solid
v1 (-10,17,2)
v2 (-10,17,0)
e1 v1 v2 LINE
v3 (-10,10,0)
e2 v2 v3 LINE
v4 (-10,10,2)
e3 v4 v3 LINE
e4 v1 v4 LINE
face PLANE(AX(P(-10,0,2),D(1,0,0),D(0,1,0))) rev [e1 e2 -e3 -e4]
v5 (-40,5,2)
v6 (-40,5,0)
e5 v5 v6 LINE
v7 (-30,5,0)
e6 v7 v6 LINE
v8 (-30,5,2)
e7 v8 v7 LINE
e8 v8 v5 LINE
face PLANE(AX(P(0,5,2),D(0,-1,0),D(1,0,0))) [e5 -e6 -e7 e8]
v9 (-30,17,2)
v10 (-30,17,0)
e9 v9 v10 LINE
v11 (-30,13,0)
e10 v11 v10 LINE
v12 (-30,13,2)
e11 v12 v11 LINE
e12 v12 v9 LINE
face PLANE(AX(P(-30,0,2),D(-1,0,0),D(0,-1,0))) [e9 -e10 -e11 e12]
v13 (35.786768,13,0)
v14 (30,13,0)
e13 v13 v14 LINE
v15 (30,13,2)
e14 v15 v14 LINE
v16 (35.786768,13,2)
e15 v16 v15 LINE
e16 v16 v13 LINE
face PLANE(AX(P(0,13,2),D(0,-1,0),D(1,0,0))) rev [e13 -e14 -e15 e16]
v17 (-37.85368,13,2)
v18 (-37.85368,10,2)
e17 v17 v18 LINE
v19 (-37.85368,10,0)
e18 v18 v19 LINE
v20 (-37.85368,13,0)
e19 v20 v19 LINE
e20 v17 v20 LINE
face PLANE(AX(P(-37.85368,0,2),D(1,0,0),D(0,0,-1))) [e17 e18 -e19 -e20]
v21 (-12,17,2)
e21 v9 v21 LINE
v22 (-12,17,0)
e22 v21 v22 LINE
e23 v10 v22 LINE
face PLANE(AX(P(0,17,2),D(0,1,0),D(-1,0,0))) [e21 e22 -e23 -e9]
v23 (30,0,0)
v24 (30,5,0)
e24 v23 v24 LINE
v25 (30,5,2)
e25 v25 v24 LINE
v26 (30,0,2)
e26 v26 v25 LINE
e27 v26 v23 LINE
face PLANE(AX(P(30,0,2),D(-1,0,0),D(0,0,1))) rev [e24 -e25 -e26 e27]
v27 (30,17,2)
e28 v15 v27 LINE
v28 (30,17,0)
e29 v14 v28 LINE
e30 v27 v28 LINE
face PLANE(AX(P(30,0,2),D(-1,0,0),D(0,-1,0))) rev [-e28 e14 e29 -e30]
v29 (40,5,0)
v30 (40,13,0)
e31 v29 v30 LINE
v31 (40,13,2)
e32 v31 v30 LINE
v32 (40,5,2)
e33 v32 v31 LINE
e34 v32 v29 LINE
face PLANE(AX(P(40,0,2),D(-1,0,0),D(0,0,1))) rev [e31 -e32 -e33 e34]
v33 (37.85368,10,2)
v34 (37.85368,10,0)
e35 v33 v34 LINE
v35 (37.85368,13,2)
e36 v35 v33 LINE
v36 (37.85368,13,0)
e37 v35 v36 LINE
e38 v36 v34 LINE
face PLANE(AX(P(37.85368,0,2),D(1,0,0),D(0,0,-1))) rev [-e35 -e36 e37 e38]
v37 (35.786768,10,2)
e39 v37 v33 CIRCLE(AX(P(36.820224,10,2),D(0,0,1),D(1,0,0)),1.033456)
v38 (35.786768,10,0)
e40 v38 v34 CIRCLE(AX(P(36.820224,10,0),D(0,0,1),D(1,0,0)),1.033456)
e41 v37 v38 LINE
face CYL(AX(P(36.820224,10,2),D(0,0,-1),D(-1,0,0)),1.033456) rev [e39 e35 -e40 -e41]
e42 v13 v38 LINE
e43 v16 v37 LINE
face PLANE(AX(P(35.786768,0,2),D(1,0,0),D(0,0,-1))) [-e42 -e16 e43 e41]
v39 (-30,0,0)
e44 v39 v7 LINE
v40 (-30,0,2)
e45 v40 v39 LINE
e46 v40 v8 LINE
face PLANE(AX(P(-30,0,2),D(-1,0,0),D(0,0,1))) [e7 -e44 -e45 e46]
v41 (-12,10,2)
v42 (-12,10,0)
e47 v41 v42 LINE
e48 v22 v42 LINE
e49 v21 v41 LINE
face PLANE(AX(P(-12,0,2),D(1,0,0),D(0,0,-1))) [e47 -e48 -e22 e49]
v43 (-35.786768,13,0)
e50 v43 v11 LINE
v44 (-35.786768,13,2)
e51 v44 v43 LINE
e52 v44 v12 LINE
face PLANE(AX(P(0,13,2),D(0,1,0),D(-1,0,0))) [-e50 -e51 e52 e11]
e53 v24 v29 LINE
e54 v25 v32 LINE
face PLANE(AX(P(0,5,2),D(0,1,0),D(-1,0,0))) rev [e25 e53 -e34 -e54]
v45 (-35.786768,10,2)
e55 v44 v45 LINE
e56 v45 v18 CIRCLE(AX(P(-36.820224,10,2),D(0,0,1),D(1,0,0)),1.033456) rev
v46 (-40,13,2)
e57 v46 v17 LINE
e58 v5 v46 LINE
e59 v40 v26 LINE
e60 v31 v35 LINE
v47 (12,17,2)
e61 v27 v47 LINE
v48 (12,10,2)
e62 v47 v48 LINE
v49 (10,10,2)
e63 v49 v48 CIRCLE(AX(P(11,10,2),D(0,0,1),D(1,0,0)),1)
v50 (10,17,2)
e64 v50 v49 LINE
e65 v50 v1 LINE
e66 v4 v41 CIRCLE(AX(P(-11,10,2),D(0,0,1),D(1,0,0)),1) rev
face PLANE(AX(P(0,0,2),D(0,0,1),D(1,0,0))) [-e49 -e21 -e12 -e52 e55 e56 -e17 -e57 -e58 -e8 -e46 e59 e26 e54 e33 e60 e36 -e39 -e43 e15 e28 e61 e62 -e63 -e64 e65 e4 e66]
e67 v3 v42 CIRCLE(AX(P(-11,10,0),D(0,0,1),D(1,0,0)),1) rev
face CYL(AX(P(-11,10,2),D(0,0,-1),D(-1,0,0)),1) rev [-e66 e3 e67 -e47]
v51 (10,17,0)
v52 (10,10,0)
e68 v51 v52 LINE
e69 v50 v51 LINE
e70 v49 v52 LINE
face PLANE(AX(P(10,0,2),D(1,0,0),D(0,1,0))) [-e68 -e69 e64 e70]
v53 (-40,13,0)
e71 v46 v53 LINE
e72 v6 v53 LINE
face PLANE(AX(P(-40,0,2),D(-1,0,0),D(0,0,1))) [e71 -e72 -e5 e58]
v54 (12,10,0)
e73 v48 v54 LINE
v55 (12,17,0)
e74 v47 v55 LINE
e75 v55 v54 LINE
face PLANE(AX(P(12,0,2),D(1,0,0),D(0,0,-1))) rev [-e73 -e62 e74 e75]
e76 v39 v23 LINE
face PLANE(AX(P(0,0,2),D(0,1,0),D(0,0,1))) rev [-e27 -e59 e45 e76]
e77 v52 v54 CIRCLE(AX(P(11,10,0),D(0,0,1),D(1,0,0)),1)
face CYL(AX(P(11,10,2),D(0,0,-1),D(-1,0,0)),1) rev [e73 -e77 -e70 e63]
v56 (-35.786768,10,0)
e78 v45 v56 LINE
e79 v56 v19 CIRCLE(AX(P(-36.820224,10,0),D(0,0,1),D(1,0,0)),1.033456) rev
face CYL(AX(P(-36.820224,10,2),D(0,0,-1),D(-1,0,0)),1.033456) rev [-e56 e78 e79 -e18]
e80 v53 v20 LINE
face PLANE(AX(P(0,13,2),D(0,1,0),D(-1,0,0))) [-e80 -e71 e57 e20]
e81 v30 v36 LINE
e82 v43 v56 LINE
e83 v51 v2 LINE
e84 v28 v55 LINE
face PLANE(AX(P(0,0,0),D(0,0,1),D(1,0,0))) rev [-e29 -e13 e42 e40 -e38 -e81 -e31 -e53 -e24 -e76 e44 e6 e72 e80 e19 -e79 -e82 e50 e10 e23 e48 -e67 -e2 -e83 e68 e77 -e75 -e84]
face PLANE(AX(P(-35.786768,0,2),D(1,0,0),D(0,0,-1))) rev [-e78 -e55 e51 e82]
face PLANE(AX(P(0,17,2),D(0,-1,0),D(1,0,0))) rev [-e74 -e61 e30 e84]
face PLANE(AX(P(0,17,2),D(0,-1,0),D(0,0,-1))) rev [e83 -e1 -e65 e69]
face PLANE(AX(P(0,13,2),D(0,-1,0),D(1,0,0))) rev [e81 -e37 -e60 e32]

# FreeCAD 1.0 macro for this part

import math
import FreeCAD as App
import Part
import Sketcher

V = App.Vector
Q = App.Units.Quantity

doc = App.newDocument("Part")
body = doc.addObject("PartDesign::Body", "Body")

sketch1 = body.newObject("Sketcher::SketchObject", "Sketch")
sketch1.AttachmentSupport = (doc.getObject("XY_Plane"), [""])
sketch1.MapMode = "FlatFace"
sketch1.addGeometry(Part.LineSegment(V(-30, 5, 0), V(-30, 0, 0)), False)
sketch1.addGeometry(Part.LineSegment(V(-30, 0, 0), V(30, 0, 0)), False)
sketch1.addGeometry(Part.LineSegment(V(30, 0, 0), V(30, 5, 0)), False)
sketch1.addGeometry(Part.LineSegment(V(30, 5, 0), V(40, 5, 0)), False)
sketch1.addGeometry(Part.LineSegment(V(40, 5, 0), V(40, 13, 0)), False)
sketch1.addGeometry(Part.LineSegment(V(40, 13, 0), V(37.9, 13, 0)), False)
sketch1.addGeometry(Part.LineSegment(V(37.9, 13, 0), V(37.9, 10, 0)), False)
sketch1.addGeometry(Part.ArcOfCircle(Part.Circle(V(36.8, 10, 0), V(0, 0, 1), 1), math.radians(180), math.radians(360)), False)
sketch1.addGeometry(Part.LineSegment(V(35.8, 10, 0), V(35.8, 13, 0)), False)
sketch1.addGeometry(Part.LineSegment(V(35.8, 13, 0), V(30, 13, 0)), False)
sketch1.addGeometry(Part.LineSegment(V(30, 13, 0), V(30, 17, 0)), False)
sketch1.addGeometry(Part.LineSegment(V(30, 17, 0), V(12, 17, 0)), False)
sketch1.addGeometry(Part.LineSegment(V(12, 17, 0), V(12, 10, 0)), False)
sketch1.addGeometry(Part.ArcOfCircle(Part.Circle(V(11, 10, 0), V(0, 0, 1), 1), math.radians(180), math.radians(360)), False)
sketch1.addGeometry(Part.LineSegment(V(10, 10, 0), V(10, 17, 0)), False)
sketch1.addGeometry(Part.LineSegment(V(10, 17, 0), V(-10, 17, 0)), False)
sketch1.addGeometry(Part.LineSegment(V(-10, 17, 0), V(-10, 10, 0)), False)
sketch1.addGeometry(Part.ArcOfCircle(Part.Circle(V(-11, 10, 0), V(0, 0, 1), 1), math.radians(180), math.radians(360)), False)
sketch1.addGeometry(Part.LineSegment(V(-12, 10, 0), V(-12, 17, 0)), False)
sketch1.addGeometry(Part.LineSegment(V(-12, 17, 0), V(-30, 17, 0)), False)
sketch1.addGeometry(Part.LineSegment(V(-30, 17, 0), V(-30, 13, 0)), False)
sketch1.addGeometry(Part.LineSegment(V(-30, 13, 0), V(-35.8, 13, 0)), False)
sketch1.addGeometry(Part.LineSegment(V(-35.8, 13, 0), V(-35.8, 10, 0)), False)
sketch1.addGeometry(Part.ArcOfCircle(Part.Circle(V(-36.8, 10, 0), V(0, 0, 1), 1), math.radians(180), math.radians(360)), False)
sketch1.addGeometry(Part.LineSegment(V(-37.9, 10, 0), V(-37.9, 13, 0)), False)
sketch1.addGeometry(Part.LineSegment(V(-37.9, 13, 0), V(-40, 13, 0)), False)
sketch1.addGeometry(Part.LineSegment(V(-40, 13, 0), V(-40, 5, 0)), False)
sketch1.addGeometry(Part.LineSegment(V(-40, 5, 0), V(-30, 5, 0)), False)
sketch1.addConstraint(Sketcher.Constraint("Coincident", 0, 2, 1, 1))
sketch1.addConstraint(Sketcher.Constraint("Coincident", 1, 2, 2, 1))
sketch1.addConstraint(Sketcher.Constraint("Coincident", 2, 2, 3, 1))
sketch1.addConstraint(Sketcher.Constraint("Coincident", 3, 2, 4, 1))
sketch1.addConstraint(Sketcher.Constraint("Coincident", 4, 2, 5, 1))
sketch1.addConstraint(Sketcher.Constraint("Coincident", 5, 2, 6, 1))
sketch1.addConstraint(Sketcher.Constraint("Tangent", 6, 2, 7, 2))
sketch1.addConstraint(Sketcher.Constraint("Tangent", 7, 1, 8, 1))
sketch1.addConstraint(Sketcher.Constraint("Coincident", 8, 2, 9, 1))
sketch1.addConstraint(Sketcher.Constraint("Coincident", 9, 2, 10, 1))
sketch1.addConstraint(Sketcher.Constraint("Coincident", 10, 2, 11, 1))
sketch1.addConstraint(Sketcher.Constraint("Coincident", 11, 2, 12, 1))
sketch1.addConstraint(Sketcher.Constraint("Tangent", 12, 2, 13, 2))
sketch1.addConstraint(Sketcher.Constraint("Tangent", 13, 1, 14, 1))
sketch1.addConstraint(Sketcher.Constraint("Coincident", 14, 2, 15, 1))
sketch1.addConstraint(Sketcher.Constraint("Coincident", 15, 2, 16, 1))
sketch1.addConstraint(Sketcher.Constraint("Tangent", 16, 2, 17, 2))
sketch1.addConstraint(Sketcher.Constraint("Tangent", 17, 1, 18, 1))
sketch1.addConstraint(Sketcher.Constraint("Coincident", 18, 2, 19, 1))
sketch1.addConstraint(Sketcher.Constraint("Coincident", 19, 2, 20, 1))
sketch1.addConstraint(Sketcher.Constraint("Coincident", 20, 2, 21, 1))
sketch1.addConstraint(Sketcher.Constraint("Coincident", 21, 2, 22, 1))
sketch1.addConstraint(Sketcher.Constraint("Tangent", 22, 2, 23, 2))
sketch1.addConstraint(Sketcher.Constraint("Tangent", 23, 1, 24, 1))
sketch1.addConstraint(Sketcher.Constraint("Coincident", 24, 2, 25, 1))
sketch1.addConstraint(Sketcher.Constraint("Coincident", 25, 2, 26, 1))
sketch1.addConstraint(Sketcher.Constraint("Coincident", 26, 2, 27, 1))
sketch1.addConstraint(Sketcher.Constraint("Coincident", 27, 2, 0, 1))
sketch1.addConstraint(Sketcher.Constraint("Vertical", 0))
sketch1.addConstraint(Sketcher.Constraint("Horizontal", 1))
sketch1.addConstraint(Sketcher.Constraint("Vertical", 2))
sketch1.addConstraint(Sketcher.Constraint("Horizontal", 3))
sketch1.addConstraint(Sketcher.Constraint("Vertical", 4))
sketch1.addConstraint(Sketcher.Constraint("Horizontal", 5))
sketch1.addConstraint(Sketcher.Constraint("Vertical", 6))
sketch1.addConstraint(Sketcher.Constraint("Vertical", 8))
sketch1.addConstraint(Sketcher.Constraint("Horizontal", 9))
sketch1.addConstraint(Sketcher.Constraint("Vertical", 10))
sketch1.addConstraint(Sketcher.Constraint("Horizontal", 11))
sketch1.addConstraint(Sketcher.Constraint("Vertical", 12))
sketch1.addConstraint(Sketcher.Constraint("Vertical", 14))
sketch1.addConstraint(Sketcher.Constraint("Horizontal", 15))
sketch1.addConstraint(Sketcher.Constraint("Vertical", 16))
sketch1.addConstraint(Sketcher.Constraint("Vertical", 18))
sketch1.addConstraint(Sketcher.Constraint("Horizontal", 19))
sketch1.addConstraint(Sketcher.Constraint("Vertical", 20))
sketch1.addConstraint(Sketcher.Constraint("Horizontal", 21))
sketch1.addConstraint(Sketcher.Constraint("Vertical", 22))
sketch1.addConstraint(Sketcher.Constraint("Vertical", 24))
sketch1.addConstraint(Sketcher.Constraint("Horizontal", 25))
sketch1.addConstraint(Sketcher.Constraint("Vertical", 26))
sketch1.addConstraint(Sketcher.Constraint("Horizontal", 27))
sketch1.addConstraint(Sketcher.Constraint("Equal", 13, 17))
sketch1.addConstraint(Sketcher.Constraint("Equal", 7, 23))
sketch1.addConstraint(Sketcher.Constraint("Symmetric", 0, 2, 1, 2, -1, 1))
sketch1.addConstraint(Sketcher.Constraint("Symmetric", 13, 3, 17, 3, -2))
sketch1.addConstraint(Sketcher.Constraint("Symmetric", 7, 3, 23, 3, -2))
sketch1.addConstraint(Sketcher.Constraint("Symmetric", 10, 2, 19, 2, -2))
sketch1.addConstraint(Sketcher.Constraint("Symmetric", 4, 2, 25, 2, -2))
sketch1.addConstraint(Sketcher.Constraint("Horizontal", 7, 3, 13, 3))
sketch1.addConstraint(Sketcher.Constraint("Horizontal", 5, 2, 8, 2))
sketch1.addConstraint(Sketcher.Constraint("Horizontal", 11, 2, 14, 2))
sketch1.addConstraint(Sketcher.Constraint("Horizontal", 9, 2, 20, 2))
sketch1.addConstraint(Sketcher.Constraint("Horizontal", 3, 2, 26, 2))
sketch1.addConstraint(Sketcher.Constraint("Vertical", 2, 2, 9, 2))
sketch1.addConstraint(Sketcher.Constraint("Radius", 13, Q("1 mm")))
sketch1.addConstraint(Sketcher.Constraint("DistanceX", 1, 1, 1, 2, Q("60 mm")))
sketch1.addConstraint(Sketcher.Constraint("DistanceX", 3, 1, 3, 2, Q("10 mm")))
sketch1.addConstraint(Sketcher.Constraint("DistanceX", 11, 2, 11, 1, Q("18 mm")))
sketch1.addConstraint(Sketcher.Constraint("DistanceY", 0, 2, 0, 1, Q("5 mm")))
sketch1.addConstraint(Sketcher.Constraint("DistanceY", 4, 1, 4, 2, Q("8 mm")))
sketch1.addConstraint(Sketcher.Constraint("DistanceY", 6, 2, 6, 1, Q("3 mm")))
sketch1.addConstraint(Sketcher.Constraint("DistanceY", 10, 1, 10, 2, Q("4 mm")))
sketch1.addConstraint(Sketcher.Constraint("Radius", 7, Q("1.033456 mm")))
sketch1.addConstraint(Sketcher.Constraint("DistanceX", 5, 2, 5, 1, Q("2.14632 mm")))
pad1 = body.newObject("PartDesign::Pad", "Pad")
pad1.Profile = sketch1
pad1.Length = 2

doc.recompute()
